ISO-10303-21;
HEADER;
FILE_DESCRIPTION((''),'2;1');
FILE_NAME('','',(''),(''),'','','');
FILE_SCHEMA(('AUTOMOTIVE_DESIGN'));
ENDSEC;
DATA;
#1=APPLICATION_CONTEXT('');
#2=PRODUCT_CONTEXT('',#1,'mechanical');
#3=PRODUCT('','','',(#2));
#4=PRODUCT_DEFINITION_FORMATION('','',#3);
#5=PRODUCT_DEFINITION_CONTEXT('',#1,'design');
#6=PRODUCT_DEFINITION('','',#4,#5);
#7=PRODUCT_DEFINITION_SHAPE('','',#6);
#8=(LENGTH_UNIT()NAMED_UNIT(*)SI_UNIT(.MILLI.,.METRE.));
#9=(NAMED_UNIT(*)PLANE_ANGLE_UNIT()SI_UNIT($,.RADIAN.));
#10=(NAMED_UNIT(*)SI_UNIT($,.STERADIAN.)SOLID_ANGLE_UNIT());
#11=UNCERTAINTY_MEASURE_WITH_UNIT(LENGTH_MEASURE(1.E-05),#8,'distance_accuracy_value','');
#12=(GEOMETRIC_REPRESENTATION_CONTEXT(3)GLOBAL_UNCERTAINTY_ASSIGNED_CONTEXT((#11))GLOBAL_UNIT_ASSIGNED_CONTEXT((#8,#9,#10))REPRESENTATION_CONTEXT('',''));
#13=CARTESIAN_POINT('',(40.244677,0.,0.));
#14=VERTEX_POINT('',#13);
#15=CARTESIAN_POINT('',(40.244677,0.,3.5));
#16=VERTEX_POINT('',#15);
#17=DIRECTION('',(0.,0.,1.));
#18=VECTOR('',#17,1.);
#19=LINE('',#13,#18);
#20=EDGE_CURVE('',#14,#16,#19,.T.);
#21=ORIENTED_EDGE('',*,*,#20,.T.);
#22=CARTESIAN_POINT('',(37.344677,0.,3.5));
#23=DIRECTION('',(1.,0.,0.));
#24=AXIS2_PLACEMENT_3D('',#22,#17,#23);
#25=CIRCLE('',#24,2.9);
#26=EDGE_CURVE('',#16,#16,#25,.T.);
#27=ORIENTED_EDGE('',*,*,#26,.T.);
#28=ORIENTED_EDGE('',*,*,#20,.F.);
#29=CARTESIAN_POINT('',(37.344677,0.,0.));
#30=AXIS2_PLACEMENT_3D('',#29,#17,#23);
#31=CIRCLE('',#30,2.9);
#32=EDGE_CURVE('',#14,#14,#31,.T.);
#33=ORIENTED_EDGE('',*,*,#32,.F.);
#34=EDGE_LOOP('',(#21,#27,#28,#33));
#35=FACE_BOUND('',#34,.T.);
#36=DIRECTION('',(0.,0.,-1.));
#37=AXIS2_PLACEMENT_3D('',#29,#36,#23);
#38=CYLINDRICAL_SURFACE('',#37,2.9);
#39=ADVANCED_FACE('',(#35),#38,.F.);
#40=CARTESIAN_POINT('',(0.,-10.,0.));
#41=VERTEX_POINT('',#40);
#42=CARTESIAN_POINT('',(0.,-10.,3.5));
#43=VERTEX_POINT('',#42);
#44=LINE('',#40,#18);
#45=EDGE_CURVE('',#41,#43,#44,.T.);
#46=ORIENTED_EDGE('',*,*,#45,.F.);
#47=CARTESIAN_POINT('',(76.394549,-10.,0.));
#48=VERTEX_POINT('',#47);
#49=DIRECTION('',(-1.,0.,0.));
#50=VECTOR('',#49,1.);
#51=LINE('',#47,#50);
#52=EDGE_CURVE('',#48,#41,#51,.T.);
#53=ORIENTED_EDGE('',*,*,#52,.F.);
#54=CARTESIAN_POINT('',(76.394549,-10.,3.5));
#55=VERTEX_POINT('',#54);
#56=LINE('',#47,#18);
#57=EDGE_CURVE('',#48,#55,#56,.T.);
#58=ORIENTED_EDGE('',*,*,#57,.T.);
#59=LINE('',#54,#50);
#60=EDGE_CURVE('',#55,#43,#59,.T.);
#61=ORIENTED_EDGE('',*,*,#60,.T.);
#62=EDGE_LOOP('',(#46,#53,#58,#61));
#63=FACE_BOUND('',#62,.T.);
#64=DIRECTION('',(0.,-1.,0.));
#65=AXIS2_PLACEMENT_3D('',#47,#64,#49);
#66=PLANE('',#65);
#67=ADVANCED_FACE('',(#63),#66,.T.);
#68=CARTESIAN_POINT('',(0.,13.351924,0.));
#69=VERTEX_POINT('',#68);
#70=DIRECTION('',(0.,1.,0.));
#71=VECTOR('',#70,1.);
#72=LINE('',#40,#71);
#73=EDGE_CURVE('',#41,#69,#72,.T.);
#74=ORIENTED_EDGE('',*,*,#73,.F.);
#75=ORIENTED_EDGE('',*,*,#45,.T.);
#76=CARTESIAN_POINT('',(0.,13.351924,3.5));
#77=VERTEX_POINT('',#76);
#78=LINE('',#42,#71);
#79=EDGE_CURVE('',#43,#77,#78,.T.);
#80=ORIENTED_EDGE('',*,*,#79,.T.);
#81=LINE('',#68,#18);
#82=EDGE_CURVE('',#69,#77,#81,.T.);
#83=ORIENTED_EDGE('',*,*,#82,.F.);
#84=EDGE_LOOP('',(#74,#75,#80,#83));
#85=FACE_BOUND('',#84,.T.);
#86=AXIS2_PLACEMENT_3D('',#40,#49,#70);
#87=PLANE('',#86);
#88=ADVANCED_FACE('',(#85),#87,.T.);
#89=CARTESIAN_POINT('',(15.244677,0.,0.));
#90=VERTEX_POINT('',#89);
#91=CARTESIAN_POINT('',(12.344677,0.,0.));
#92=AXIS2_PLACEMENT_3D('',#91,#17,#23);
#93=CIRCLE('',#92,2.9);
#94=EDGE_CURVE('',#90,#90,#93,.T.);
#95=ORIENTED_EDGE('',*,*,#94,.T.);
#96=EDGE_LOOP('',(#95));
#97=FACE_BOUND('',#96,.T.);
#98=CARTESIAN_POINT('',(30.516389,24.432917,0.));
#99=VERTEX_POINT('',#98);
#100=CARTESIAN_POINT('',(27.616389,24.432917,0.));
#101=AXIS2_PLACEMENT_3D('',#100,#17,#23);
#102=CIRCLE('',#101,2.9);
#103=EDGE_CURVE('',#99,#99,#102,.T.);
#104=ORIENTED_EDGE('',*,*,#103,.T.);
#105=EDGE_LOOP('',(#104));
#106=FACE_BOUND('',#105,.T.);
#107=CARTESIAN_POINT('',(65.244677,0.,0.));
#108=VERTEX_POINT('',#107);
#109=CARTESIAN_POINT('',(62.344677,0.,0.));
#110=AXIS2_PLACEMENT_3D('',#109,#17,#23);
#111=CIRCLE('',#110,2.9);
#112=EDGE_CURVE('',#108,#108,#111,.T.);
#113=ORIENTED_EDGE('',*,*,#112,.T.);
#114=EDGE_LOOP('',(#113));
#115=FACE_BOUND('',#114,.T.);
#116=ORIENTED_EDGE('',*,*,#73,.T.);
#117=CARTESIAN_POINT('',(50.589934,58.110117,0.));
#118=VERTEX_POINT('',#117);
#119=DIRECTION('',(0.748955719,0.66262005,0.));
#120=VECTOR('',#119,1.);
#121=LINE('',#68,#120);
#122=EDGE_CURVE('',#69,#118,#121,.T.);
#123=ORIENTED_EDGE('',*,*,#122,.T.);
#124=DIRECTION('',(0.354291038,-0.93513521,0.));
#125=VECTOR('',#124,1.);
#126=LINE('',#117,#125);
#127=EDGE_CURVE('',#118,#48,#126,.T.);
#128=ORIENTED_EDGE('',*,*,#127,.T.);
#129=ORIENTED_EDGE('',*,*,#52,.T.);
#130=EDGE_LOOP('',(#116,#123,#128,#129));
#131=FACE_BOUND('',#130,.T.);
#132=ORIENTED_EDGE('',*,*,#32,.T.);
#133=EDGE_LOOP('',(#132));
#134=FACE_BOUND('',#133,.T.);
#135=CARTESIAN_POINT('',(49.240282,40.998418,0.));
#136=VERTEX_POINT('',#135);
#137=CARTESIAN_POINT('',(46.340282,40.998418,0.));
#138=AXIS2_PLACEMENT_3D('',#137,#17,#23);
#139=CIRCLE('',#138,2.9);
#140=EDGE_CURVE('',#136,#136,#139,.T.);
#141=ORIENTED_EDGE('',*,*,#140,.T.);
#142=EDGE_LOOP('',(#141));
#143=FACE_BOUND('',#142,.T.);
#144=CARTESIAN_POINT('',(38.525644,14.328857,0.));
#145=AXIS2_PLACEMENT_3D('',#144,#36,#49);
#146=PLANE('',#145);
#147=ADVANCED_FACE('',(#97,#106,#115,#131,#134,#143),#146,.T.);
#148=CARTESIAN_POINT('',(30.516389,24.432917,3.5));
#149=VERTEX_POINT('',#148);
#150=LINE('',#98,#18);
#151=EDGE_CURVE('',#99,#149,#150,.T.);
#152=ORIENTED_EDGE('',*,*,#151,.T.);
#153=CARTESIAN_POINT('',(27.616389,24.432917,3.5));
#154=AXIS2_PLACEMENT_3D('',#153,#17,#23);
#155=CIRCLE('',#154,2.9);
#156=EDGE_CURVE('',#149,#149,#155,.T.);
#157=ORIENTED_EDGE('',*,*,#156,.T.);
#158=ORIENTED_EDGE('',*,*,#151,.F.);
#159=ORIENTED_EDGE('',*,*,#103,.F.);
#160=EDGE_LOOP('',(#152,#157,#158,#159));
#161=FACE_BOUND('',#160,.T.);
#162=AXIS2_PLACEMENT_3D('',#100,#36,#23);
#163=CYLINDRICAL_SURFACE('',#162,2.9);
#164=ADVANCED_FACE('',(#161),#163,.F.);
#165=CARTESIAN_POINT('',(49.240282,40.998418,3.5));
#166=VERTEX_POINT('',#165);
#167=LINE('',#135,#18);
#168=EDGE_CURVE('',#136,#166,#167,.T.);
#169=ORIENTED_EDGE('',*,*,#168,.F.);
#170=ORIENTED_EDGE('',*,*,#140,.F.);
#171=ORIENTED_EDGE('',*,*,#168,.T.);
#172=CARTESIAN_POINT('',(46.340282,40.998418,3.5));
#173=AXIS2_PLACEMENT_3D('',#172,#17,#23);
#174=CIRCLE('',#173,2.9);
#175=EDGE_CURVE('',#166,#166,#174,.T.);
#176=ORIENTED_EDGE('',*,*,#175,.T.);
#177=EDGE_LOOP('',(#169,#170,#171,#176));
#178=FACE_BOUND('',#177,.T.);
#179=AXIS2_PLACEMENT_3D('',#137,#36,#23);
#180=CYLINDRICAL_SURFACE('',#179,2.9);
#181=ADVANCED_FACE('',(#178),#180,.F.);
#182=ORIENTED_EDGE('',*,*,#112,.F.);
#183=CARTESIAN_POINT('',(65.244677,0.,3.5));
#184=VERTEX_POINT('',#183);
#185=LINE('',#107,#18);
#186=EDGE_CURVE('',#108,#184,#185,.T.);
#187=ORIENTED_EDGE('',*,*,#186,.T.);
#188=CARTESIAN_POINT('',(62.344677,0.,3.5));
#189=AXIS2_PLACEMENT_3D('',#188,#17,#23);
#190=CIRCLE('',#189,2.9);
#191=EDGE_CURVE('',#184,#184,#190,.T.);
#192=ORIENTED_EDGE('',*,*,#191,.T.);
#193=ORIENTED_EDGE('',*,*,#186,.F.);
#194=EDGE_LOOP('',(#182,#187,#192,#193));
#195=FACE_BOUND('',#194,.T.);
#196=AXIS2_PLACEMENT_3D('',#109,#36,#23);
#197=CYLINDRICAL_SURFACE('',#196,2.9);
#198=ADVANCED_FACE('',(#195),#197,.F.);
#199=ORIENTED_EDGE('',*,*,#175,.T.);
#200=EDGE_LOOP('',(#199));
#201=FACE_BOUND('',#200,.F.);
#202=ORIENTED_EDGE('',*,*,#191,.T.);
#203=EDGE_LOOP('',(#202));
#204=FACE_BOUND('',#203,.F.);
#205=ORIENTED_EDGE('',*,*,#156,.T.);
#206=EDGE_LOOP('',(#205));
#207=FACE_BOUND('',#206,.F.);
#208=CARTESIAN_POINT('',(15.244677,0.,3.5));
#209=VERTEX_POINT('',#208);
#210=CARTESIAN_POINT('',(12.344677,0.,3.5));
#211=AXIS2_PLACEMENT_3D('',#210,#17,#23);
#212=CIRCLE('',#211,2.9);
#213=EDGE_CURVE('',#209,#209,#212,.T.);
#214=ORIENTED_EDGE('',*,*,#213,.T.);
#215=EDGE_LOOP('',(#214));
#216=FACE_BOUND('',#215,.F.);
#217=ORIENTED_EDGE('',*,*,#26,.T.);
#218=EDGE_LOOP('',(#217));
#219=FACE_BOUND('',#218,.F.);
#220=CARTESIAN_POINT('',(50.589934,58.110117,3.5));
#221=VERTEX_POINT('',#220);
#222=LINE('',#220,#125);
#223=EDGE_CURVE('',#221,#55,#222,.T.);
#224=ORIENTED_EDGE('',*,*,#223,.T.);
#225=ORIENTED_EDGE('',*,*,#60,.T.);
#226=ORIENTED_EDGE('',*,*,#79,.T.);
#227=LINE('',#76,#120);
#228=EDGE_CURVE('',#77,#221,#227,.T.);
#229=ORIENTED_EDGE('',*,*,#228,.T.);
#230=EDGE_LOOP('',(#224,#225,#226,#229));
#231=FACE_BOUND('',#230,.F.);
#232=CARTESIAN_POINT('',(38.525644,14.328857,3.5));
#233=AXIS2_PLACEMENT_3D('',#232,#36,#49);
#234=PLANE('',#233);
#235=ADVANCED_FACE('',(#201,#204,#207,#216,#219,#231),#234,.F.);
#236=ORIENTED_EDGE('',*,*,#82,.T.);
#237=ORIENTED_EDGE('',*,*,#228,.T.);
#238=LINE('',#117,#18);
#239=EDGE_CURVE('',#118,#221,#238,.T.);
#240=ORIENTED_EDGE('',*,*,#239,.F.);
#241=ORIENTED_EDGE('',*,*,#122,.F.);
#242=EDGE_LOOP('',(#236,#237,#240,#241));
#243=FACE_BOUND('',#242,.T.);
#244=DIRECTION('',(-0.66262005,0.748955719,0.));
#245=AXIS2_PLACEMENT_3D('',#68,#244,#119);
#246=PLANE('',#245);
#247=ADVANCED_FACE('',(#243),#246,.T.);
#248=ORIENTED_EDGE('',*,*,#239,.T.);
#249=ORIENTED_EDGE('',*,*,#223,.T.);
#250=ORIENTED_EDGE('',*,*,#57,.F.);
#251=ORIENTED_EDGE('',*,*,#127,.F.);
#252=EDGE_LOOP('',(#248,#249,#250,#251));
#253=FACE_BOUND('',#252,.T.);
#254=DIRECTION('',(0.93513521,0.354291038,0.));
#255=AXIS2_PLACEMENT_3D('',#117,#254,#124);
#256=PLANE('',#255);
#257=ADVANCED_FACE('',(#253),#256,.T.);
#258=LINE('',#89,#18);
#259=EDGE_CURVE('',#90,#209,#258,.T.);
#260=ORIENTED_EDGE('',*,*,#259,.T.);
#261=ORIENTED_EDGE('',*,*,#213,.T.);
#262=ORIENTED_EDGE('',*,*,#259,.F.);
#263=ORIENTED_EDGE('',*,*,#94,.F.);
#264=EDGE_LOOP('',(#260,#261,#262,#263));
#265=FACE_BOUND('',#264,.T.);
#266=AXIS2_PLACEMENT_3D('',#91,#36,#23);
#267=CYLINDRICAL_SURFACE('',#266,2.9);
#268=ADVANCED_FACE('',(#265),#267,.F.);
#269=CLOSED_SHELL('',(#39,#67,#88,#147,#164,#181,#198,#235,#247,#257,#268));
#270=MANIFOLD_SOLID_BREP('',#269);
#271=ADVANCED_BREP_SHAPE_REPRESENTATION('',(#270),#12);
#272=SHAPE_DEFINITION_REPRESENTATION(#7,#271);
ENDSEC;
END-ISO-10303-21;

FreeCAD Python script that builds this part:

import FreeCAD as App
import Part
import Sketcher
from FreeCAD import Vector
Q = App.Units.Quantity


def add_polygon(sketch, points):
    """Adds a closed chain of lines whose ends are joined by coincident constraints."""
    first, n = sketch.GeometryCount, len(points)
    for a, b in zip(points, points[1:] + points[:1]):
        sketch.addGeometry(Part.LineSegment(App.Vector(*a, 0), App.Vector(*b, 0)), False)
    for i in range(n):
        sketch.addConstraint(Sketcher.Constraint("Coincident", first + i, 2, first + (i + 1) % n, 1))

doc = App.newDocument("Part")
body = doc.addObject("PartDesign::Body", "Body")

# Sketch on XY plane
sketch1 = body.newObject("Sketcher::SketchObject", "Sketch")
sketch1.AttachmentSupport = (doc.getObject("XY_Plane"), [""])
sketch1.MapMode = "FlatFace"
add_polygon(sketch1, [(0, 13.351924), (0, -10), (76.394549, -10), (50.589934, 58.110117)])  # lines 0-3
sketch1.addGeometry(Part.Circle(Vector(62.344677, 0, 0), Vector(0, 0, 1), 2.9), False)  # 4
sketch1.addGeometry(Part.Circle(Vector(37.344677, 0, 0), Vector(0, 0, 1), 2.9), False)  # 5
sketch1.addGeometry(Part.Circle(Vector(12.344677, 0, 0), Vector(0, 0, 1), 2.9), False)  # 6
sketch1.addGeometry(Part.Circle(Vector(46.340282, 40.998418, 0), Vector(0, 0, 1), 2.9), False)  # 7
sketch1.addGeometry(Part.Circle(Vector(27.616389, 24.432917, 0), Vector(0, 0, 1), 2.9), False)  # 8
sketch1.addConstraint([
    Sketcher.Constraint("Vertical", 0),
    Sketcher.Constraint("Horizontal", 1),
    Sketcher.Constraint("Equal", 4, 5),
    Sketcher.Constraint("Equal", 5, 6),
    Sketcher.Constraint("Equal", 6, 7),
    Sketcher.Constraint("Equal", 7, 8),
    Sketcher.Constraint("PointOnObject", 4, 3, -1),
    Sketcher.Constraint("PointOnObject", 5, 3, -1),
    Sketcher.Constraint("PointOnObject", 6, 3, -1),
    Sketcher.Constraint("PointOnObject", 0, 2, -2),
    Sketcher.Constraint("Diameter", 4, Q("5.8 mm")),
    Sketcher.Constraint("DistanceY", 0, 2, -1, 1, Q("10 mm")),
    Sketcher.Constraint("Angle", 3, Q("-138.5 deg")),
    Sketcher.Constraint("DistanceX", 5, 3, 4, 3, Q("25 mm")),
    Sketcher.Constraint("DistanceX", 6, 3, 5, 3, Q("25 mm")),
    Sketcher.Constraint("Angle", 2, Q("110.75 deg")),
    Sketcher.Constraint("DistanceX", 1, 1, 1, 2, Q("76.394549 mm")),
    Sketcher.Constraint("DistanceY", 8, 3, 7, 3, Q("16.565501 mm")),
    Sketcher.Constraint("DistanceY", 7, 3, 2, 2, Q("17.111699 mm")),
    Sketcher.Constraint("DistanceY", 0, 2, 0, 1, Q("23.351924 mm")),
    Sketcher.Constraint("DistanceX", -1, 1, 8, 3, Q("27.616389 mm")),
    Sketcher.Constraint("DistanceX", 6, 3, 1, 2, Q("64.049872 mm")),
    Sketcher.Constraint("DistanceX", 7, 3, 2, 2, Q("4.249652 mm")),
])
pad1 = body.newObject("PartDesign::Pad", "Pad")
pad1.Profile = sketch1
pad1.Length = 3.5

doc.recompute()
